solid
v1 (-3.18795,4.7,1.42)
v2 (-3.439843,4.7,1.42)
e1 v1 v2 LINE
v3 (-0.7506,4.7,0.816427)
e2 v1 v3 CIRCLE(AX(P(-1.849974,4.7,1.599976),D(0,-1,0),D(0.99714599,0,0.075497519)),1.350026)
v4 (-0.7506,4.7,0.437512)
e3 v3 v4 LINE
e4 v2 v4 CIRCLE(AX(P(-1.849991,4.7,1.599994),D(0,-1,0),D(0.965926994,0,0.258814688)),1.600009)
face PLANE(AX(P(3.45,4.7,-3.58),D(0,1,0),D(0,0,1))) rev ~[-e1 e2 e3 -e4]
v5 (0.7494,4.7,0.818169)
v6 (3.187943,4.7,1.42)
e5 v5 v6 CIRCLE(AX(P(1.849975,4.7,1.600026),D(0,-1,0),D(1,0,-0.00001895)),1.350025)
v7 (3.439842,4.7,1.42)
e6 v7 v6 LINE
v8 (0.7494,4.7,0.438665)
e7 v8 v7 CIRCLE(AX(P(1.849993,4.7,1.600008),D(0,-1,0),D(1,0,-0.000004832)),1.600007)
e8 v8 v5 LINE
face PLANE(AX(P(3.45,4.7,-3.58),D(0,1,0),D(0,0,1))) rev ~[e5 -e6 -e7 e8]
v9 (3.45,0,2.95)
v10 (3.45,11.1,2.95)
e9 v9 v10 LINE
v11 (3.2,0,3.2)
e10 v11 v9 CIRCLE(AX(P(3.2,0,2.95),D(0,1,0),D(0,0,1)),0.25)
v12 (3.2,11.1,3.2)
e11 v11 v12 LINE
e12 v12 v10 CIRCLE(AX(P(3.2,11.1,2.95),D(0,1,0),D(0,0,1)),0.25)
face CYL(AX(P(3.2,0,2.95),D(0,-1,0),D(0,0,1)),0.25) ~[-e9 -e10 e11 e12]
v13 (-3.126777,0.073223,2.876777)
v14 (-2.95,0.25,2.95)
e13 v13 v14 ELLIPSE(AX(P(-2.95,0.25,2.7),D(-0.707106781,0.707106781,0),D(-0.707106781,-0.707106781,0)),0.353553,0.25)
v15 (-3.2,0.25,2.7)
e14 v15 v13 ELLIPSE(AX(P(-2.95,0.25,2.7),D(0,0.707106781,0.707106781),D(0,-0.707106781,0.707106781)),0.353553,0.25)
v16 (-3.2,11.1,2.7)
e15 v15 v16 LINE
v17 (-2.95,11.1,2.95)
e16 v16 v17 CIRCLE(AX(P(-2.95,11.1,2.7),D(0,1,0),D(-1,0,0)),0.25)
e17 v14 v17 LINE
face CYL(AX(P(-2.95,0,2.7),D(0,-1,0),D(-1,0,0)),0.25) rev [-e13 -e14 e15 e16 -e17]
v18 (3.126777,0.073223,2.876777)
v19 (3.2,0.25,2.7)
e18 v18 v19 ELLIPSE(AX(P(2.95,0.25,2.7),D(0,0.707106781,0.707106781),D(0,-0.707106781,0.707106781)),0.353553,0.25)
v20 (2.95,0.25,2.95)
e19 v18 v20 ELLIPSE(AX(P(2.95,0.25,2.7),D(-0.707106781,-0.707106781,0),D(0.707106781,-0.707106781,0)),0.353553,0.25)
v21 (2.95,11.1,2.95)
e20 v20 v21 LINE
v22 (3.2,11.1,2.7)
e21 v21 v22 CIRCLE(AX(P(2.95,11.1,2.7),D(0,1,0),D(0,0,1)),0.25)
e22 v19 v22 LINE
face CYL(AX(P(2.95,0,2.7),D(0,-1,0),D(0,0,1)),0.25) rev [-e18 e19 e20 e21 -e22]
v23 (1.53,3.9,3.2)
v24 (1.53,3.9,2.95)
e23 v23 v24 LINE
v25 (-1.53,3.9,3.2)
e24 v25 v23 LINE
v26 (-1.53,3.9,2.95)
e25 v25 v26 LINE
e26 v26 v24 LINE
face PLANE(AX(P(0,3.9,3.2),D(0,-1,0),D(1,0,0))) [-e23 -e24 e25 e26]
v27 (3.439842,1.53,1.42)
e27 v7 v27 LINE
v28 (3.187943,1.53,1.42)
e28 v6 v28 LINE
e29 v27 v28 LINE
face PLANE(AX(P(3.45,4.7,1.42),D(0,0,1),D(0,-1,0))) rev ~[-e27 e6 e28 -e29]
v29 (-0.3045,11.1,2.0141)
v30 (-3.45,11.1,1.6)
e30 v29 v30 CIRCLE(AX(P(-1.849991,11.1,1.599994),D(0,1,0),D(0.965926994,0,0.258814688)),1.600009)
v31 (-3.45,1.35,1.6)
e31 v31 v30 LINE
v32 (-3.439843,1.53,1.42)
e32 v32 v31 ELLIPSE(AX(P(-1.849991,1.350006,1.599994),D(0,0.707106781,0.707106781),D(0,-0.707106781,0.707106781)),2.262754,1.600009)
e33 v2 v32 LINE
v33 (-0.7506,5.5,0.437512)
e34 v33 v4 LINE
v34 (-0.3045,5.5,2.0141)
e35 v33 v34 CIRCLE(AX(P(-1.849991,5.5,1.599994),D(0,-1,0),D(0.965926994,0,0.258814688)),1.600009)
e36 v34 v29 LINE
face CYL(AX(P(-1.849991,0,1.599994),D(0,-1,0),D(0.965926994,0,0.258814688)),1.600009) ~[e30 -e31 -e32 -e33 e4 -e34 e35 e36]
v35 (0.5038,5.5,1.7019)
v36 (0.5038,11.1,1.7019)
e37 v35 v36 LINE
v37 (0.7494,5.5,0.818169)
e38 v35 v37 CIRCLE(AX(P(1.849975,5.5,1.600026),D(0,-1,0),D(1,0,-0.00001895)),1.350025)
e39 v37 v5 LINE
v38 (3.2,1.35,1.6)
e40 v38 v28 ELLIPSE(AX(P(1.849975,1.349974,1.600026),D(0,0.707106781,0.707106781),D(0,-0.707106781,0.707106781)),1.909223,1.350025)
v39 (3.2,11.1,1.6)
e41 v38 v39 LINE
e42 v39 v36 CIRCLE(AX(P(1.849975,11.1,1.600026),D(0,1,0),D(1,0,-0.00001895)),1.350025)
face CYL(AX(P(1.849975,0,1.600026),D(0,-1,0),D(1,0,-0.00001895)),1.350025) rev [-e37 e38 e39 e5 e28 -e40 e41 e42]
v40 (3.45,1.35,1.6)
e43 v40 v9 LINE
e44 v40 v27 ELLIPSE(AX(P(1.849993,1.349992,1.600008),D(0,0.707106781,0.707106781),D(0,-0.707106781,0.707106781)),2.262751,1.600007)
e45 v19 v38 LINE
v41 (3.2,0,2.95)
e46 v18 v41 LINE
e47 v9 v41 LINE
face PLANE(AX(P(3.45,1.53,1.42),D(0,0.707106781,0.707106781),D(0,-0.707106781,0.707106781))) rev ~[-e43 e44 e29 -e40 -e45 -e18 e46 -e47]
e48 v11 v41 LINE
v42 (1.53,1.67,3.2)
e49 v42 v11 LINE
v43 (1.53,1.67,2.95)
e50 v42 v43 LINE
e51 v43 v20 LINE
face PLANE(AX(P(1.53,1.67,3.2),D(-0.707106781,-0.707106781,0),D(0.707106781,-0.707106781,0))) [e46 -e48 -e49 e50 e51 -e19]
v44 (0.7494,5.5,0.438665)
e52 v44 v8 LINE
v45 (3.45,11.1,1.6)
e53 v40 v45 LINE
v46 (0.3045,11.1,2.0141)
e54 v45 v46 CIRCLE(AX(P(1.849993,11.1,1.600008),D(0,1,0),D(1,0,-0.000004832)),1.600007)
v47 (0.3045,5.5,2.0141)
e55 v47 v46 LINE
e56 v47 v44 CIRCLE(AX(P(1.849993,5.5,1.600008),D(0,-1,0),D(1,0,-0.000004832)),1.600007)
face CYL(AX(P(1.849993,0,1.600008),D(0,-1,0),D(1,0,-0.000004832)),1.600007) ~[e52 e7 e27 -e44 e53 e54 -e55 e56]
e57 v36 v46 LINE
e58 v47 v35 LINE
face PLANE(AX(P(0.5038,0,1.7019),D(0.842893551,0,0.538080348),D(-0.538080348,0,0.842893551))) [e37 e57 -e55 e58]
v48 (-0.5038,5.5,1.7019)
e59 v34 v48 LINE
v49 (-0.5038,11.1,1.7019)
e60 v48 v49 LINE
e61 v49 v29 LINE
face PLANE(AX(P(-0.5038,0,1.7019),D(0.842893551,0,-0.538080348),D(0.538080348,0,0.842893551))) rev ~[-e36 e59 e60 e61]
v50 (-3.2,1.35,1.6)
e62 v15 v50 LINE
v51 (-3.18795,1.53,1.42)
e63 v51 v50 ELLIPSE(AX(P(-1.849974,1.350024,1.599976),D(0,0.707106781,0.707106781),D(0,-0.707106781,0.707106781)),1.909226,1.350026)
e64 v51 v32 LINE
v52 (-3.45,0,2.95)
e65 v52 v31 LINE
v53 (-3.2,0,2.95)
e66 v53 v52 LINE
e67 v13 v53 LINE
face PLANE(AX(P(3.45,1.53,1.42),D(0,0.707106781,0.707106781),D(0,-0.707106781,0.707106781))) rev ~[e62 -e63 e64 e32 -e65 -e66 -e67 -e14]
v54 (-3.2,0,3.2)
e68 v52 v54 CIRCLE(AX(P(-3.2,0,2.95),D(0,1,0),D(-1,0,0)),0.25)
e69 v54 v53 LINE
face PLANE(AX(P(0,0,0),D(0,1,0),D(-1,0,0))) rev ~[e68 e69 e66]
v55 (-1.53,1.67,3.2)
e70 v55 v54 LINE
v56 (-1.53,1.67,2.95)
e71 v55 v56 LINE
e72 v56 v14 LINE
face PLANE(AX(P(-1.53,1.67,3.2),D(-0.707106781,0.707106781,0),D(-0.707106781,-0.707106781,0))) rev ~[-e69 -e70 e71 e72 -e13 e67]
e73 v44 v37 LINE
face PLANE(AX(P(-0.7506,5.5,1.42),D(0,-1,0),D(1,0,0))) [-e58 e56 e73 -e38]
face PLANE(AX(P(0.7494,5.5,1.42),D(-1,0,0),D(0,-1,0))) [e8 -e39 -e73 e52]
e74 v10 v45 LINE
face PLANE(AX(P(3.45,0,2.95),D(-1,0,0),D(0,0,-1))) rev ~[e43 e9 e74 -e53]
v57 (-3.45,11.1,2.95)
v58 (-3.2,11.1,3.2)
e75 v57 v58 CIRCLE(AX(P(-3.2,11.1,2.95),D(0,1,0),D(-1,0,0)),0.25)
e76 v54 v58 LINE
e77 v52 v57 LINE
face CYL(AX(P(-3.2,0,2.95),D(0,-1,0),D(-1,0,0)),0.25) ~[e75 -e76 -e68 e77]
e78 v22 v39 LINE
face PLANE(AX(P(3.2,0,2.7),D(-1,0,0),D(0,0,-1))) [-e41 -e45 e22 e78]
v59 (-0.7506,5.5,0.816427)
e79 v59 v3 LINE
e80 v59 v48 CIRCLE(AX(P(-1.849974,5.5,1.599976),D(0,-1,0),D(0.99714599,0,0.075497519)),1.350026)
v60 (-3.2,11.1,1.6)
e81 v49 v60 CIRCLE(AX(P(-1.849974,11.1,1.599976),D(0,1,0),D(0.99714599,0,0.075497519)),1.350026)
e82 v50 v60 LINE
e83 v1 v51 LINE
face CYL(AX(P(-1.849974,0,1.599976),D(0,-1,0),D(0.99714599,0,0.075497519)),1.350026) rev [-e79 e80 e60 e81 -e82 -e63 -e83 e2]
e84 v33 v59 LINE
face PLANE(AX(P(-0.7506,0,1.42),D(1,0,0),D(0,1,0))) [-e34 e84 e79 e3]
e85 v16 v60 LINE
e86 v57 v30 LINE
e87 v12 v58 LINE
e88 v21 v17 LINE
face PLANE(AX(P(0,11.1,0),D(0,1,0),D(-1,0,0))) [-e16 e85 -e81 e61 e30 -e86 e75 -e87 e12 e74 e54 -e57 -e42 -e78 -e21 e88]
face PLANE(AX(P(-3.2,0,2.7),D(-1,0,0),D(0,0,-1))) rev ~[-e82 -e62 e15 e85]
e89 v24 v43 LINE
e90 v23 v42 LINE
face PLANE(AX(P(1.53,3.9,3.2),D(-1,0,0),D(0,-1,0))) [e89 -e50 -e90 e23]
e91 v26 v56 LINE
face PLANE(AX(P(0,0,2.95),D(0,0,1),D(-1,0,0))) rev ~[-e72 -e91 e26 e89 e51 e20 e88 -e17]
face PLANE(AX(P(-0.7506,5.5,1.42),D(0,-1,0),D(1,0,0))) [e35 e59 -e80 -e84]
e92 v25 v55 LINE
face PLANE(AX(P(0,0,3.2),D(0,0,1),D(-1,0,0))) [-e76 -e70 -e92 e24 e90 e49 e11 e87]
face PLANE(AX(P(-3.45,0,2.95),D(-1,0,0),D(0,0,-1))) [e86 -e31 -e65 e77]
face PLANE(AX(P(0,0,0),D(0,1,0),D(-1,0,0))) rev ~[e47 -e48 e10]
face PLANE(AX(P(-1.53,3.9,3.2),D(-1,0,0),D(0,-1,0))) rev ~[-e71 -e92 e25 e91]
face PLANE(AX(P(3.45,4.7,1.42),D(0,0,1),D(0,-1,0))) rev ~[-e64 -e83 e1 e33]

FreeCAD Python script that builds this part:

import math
import FreeCAD as App
import Part
import Sketcher
from FreeCAD import Vector
Q = App.Units.Quantity

doc = App.newDocument("Part")
body = doc.addObject("PartDesign::Body", "Body")

sketch1 = body.newObject("Sketcher::SketchObject", "Sketch")
sketch1.AttachmentSupport = (doc.getObject("XZ_Plane"), [""])
sketch1.MapMode = "FlatFace"
sketch1.addGeometry(Part.LineSegment(Vector(-3.2, 3.2, 0), Vector(3.2, 3.2, 0)), False)
sketch1.addGeometry(Part.ArcOfCircle(Part.Circle(Vector(3.2, 2.95, 0), Vector(0, 0, 1), 0.25), math.radians(0), math.radians(90)), False)
sketch1.addGeometry(Part.LineSegment(Vector(3.45, 2.95, 0), Vector(3.45, 1.6, 0)), False)
sketch1.addGeometry(Part.ArcOfCircle(Part.Circle(Vector(1.85, 1.6, 0), Vector(0, 0, 1), 1.6), math.radians(165), math.radians(360)), False)
sketch1.addGeometry(Part.LineSegment(Vector(0.3, 2.01, 0), Vector(0.5, 1.7, 0)), False)
sketch1.addGeometry(Part.ArcOfCircle(Part.Circle(Vector(1.85, 1.6, 0), Vector(0, 0, 1), 1.35), math.radians(176), math.radians(360)), False)
sketch1.addGeometry(Part.LineSegment(Vector(3.2, 1.6, 0), Vector(3.2, 2.7, 0)), False)
sketch1.addGeometry(Part.ArcOfCircle(Part.Circle(Vector(2.95, 2.7, 0), Vector(0, 0, 1), 0.25), math.radians(0), math.radians(90)), False)
sketch1.addGeometry(Part.LineSegment(Vector(2.95, 2.95, 0), Vector(-2.95, 2.95, 0)), False)
sketch1.addGeometry(Part.ArcOfCircle(Part.Circle(Vector(-2.95, 2.7, 0), Vector(0, 0, 1), 0.25), math.radians(90), math.radians(180)), False)
sketch1.addGeometry(Part.LineSegment(Vector(-3.2, 2.7, 0), Vector(-3.2, 1.6, 0)), False)
sketch1.addGeometry(Part.ArcOfCircle(Part.Circle(Vector(-1.85, 1.6, 0), Vector(0, 0, 1), 1.35), math.radians(180), math.radians(364)), False)
sketch1.addGeometry(Part.LineSegment(Vector(-0.5, 1.7, 0), Vector(-0.3, 2.01, 0)), False)
sketch1.addGeometry(Part.ArcOfCircle(Part.Circle(Vector(-1.85, 1.6, 0), Vector(0, 0, 1), 1.6), math.radians(180), math.radians(375)), False)
sketch1.addGeometry(Part.LineSegment(Vector(-3.45, 1.6, 0), Vector(-3.45, 2.95, 0)), False)
sketch1.addGeometry(Part.ArcOfCircle(Part.Circle(Vector(-3.2, 2.95, 0), Vector(0, 0, 1), 0.25), math.radians(90), math.radians(180)), False)
sketch1.addConstraint(Sketcher.Constraint("Tangent", 0, 2, 1, 2))
sketch1.addConstraint(Sketcher.Constraint("Tangent", 1, 1, 2, 1))
sketch1.addConstraint(Sketcher.Constraint("Tangent", 2, 2, 3, 2))
sketch1.addConstraint(Sketcher.Constraint("Coincident", 3, 1, 4, 1))
sketch1.addConstraint(Sketcher.Constraint("Coincident", 4, 2, 5, 1))
sketch1.addConstraint(Sketcher.Constraint("Tangent", 5, 2, 6, 1))
sketch1.addConstraint(Sketcher.Constraint("Tangent", 6, 2, 7, 1))
sketch1.addConstraint(Sketcher.Constraint("Tangent", 7, 2, 8, 1))
sketch1.addConstraint(Sketcher.Constraint("Tangent", 8, 2, 9, 1))
sketch1.addConstraint(Sketcher.Constraint("Tangent", 9, 2, 10, 1))
sketch1.addConstraint(Sketcher.Constraint("Tangent", 10, 2, 11, 1))
sketch1.addConstraint(Sketcher.Constraint("Coincident", 11, 2, 12, 1))
sketch1.addConstraint(Sketcher.Constraint("Coincident", 12, 2, 13, 2))
sketch1.addConstraint(Sketcher.Constraint("Tangent", 13, 1, 14, 1))
sketch1.addConstraint(Sketcher.Constraint("Tangent", 14, 2, 15, 2))
sketch1.addConstraint(Sketcher.Constraint("Tangent", 15, 1, 0, 1))
sketch1.addConstraint(Sketcher.Constraint("Horizontal", 0))
sketch1.addConstraint(Sketcher.Constraint("Vertical", 2))
sketch1.addConstraint(Sketcher.Constraint("Vertical", 6))
sketch1.addConstraint(Sketcher.Constraint("Horizontal", 8))
sketch1.addConstraint(Sketcher.Constraint("Vertical", 10))
sketch1.addConstraint(Sketcher.Constraint("Vertical", 14))
sketch1.addConstraint(Sketcher.Constraint("Coincident", 5, 3, 3, 3))
sketch1.addConstraint(Sketcher.Constraint("Coincident", 13, 3, 11, 3))
sketch1.addConstraint(Sketcher.Constraint("Equal", 1, 7))
sketch1.addConstraint(Sketcher.Constraint("Equal", 7, 9))
sketch1.addConstraint(Sketcher.Constraint("Equal", 5, 11))
sketch1.addConstraint(Sketcher.Constraint("Equal", 3, 13))
sketch1.addConstraint(Sketcher.Constraint("Equal", 9, 15))
sketch1.addConstraint(Sketcher.Constraint("Symmetric", 3, 3, 11, 3, -2))
sketch1.addConstraint(Sketcher.Constraint("Horizontal", 1, 1, 7, 2))
sketch1.addConstraint(Sketcher.Constraint("Horizontal", 4, 2, 11, 2))
sketch1.addConstraint(Sketcher.Constraint("Horizontal", 3, 1, 12, 2))
sketch1.addConstraint(Sketcher.Constraint("Vertical", 0, 2, 5, 2))
sketch1.addConstraint(Sketcher.Constraint("Radius", 3, 1.6))
sketch1.addConstraint(Sketcher.Constraint("Radius", 1, 0.25))
sketch1.addConstraint(Sketcher.Constraint("DistanceX", -1, 1, 1, 3, 3.2))
sketch1.addConstraint(Sketcher.Constraint("DistanceY", -1, 1, 3, 3, 1.6))
sketch1.addConstraint(Sketcher.Constraint("DistanceY", -1, 1, 0, 2, 3.2))
sketch1.addConstraint(Sketcher.Constraint("DistanceY", -1, 1, 3, 1, 2.014))
sketch1.addConstraint(Sketcher.Constraint("DistanceY", -1, 1, 4, 2, 1.702))
pad1 = body.newObject("PartDesign::Pad", "Pad")
pad1.Profile = sketch1
pad1.Length = 11.1
pad1.Reversed = True

sketch2 = body.newObject("Sketcher::SketchObject", "Sketch001")
sketch2.AttachmentSupport = (doc.getObject("YZ_Plane"), [""])
sketch2.MapMode = "FlatFace"
sketch2.AttachmentOffset = App.Placement(Vector(0, 0, 3.45), App.Rotation())
sketch2.addGeometry(Part.LineSegment(Vector(-3, -3.6, 0), Vector(4.7, -3.6, 0)), False)
sketch2.addGeometry(Part.LineSegment(Vector(4.7, -3.6, 0), Vector(4.7, 1.4, 0)), False)
sketch2.addGeometry(Part.LineSegment(Vector(4.7, 1.4, 0), Vector(1.5, 1.4, 0)), False)
sketch2.addGeometry(Part.LineSegment(Vector(1.5, 1.4, 0), Vector(0, 3, 0)), False)
sketch2.addGeometry(Part.LineSegment(Vector(0, 3, 0), Vector(-3, 3, 0)), False)
sketch2.addGeometry(Part.LineSegment(Vector(-3, 3, 0), Vector(-3, -3.6, 0)), False)
sketch2.addConstraint(Sketcher.Constraint("Coincident", 0, 2, 1, 1))
sketch2.addConstraint(Sketcher.Constraint("Coincident", 1, 2, 2, 1))
sketch2.addConstraint(Sketcher.Constraint("Coincident", 2, 2, 3, 1))
sketch2.addConstraint(Sketcher.Constraint("Coincident", 3, 2, 4, 1))
sketch2.addConstraint(Sketcher.Constraint("Coincident", 4, 2, 5, 1))
sketch2.addConstraint(Sketcher.Constraint("Coincident", 5, 2, 0, 1))
sketch2.addConstraint(Sketcher.Constraint("Horizontal", 0))
sketch2.addConstraint(Sketcher.Constraint("Vertical", 1))
sketch2.addConstraint(Sketcher.Constraint("Horizontal", 2))
sketch2.addConstraint(Sketcher.Constraint("Horizontal", 4))
sketch2.addConstraint(Sketcher.Constraint("Vertical", 5))
sketch2.addConstraint(Sketcher.Constraint("PointOnObject", 3, 2, -2))
sketch2.addConstraint(Sketcher.Constraint("DistanceX", 4, 2, 4, 1, 3.0))
sketch2.addConstraint(Sketcher.Constraint("DistanceY", 1, 1, 1, 2, 5.0))
sketch2.addConstraint(Sketcher.Constraint("Angle", 3, Q("135 deg")))
sketch2.addConstraint(Sketcher.Constraint("DistanceX", 0, 1, 0, 2, 7.7))
sketch2.addConstraint(Sketcher.Constraint("DistanceX", 2, 2, 2, 1, 3.17))
sketch2.addConstraint(Sketcher.Constraint("DistanceY", 0, 2, -1, 1, 3.58))
pocket1 = body.newObject("PartDesign::Pocket", "Pocket")
pocket1.Profile = sketch2
pocket1.Type = "ThroughAll"

sketch3 = body.newObject("Sketcher::SketchObject", "Sketch002")
sketch3.AttachmentSupport = (doc.getObject("XY_Plane"), [""])
sketch3.MapMode = "FlatFace"
sketch3.AttachmentOffset = App.Placement(Vector(0, 0, 1.42), App.Rotation())
sketch3.addGeometry(Part.LineSegment(Vector(0.7, 5.5, 0), Vector(0.7, 0, 0)), False)
sketch3.addGeometry(Part.LineSegment(Vector(0.7, 0, 0), Vector(-0.8, 0, 0)), False)
sketch3.addGeometry(Part.LineSegment(Vector(-0.8, 0, 0), Vector(-0.8, 5.5, 0)), False)
sketch3.addGeometry(Part.LineSegment(Vector(-0.8, 5.5, 0), Vector(0.7, 5.5, 0)), False)
sketch3.addConstraint(Sketcher.Constraint("Coincident", 0, 2, 1, 1))
sketch3.addConstraint(Sketcher.Constraint("Coincident", 1, 2, 2, 1))
sketch3.addConstraint(Sketcher.Constraint("Coincident", 2, 2, 3, 1))
sketch3.addConstraint(Sketcher.Constraint("Coincident", 3, 2, 0, 1))
sketch3.addConstraint(Sketcher.Constraint("Vertical", 0))
sketch3.addConstraint(Sketcher.Constraint("Horizontal", 1))
sketch3.addConstraint(Sketcher.Constraint("Vertical", 2))
sketch3.addConstraint(Sketcher.Constraint("Horizontal", 3))
sketch3.addConstraint(Sketcher.Constraint("PointOnObject", 0, 2, -1))
sketch3.addConstraint(Sketcher.Constraint("DistanceX", 1, 2, 1, 1, 1.5))
sketch3.addConstraint(Sketcher.Constraint("DistanceY", 0, 2, 0, 1, 5.5))
sketch3.addConstraint(Sketcher.Constraint("DistanceX", -1, 1, 0, 2, 0.7494))
pocket2 = body.newObject("PartDesign::Pocket", "Pocket001")
pocket2.Profile = sketch3
pocket2.Type = "TwoLengths"
pocket2.Length = 11.1
pocket2.Length2 = 1

sketch4 = body.newObject("Sketcher::SketchObject", "Sketch003")
sketch4.AttachmentSupport = (doc.getObject("XY_Plane"), [""])
sketch4.MapMode = "FlatFace"
sketch4.AttachmentOffset = App.Placement(Vector(0, 0, 3.2), App.Rotation())
sketch4.addGeometry(Part.LineSegment(Vector(-1.5, 1.7, 0), Vector(-3.2, 0, 0)), False)
sketch4.addGeometry(Part.LineSegment(Vector(-3.2, 0, 0), Vector(3.2, 0, 0)), False)
sketch4.addGeometry(Part.LineSegment(Vector(3.2, 0, 0), Vector(1.5, 1.7, 0)), False)
sketch4.addGeometry(Part.LineSegment(Vector(1.5, 1.7, 0), Vector(1.5, 3.9, 0)), False)
sketch4.addGeometry(Part.LineSegment(Vector(1.5, 3.9, 0), Vector(-1.5, 3.9, 0)), False)
sketch4.addGeometry(Part.LineSegment(Vector(-1.5, 3.9, 0), Vector(-1.5, 1.7, 0)), False)
sketch4.addConstraint(Sketcher.Constraint("Coincident", 0, 2, 1, 1))
sketch4.addConstraint(Sketcher.Constraint("Coincident", 1, 2, 2, 1))
sketch4.addConstraint(Sketcher.Constraint("Coincident", 2, 2, 3, 1))
sketch4.addConstraint(Sketcher.Constraint("Coincident", 3, 2, 4, 1))
sketch4.addConstraint(Sketcher.Constraint("Coincident", 4, 2, 5, 1))
sketch4.addConstraint(Sketcher.Constraint("Coincident", 5, 2, 0, 1))
sketch4.addConstraint(Sketcher.Constraint("Horizontal", 1))
sketch4.addConstraint(Sketcher.Constraint("Vertical", 3))
sketch4.addConstraint(Sketcher.Constraint("Horizontal", 4))
sketch4.addConstraint(Sketcher.Constraint("Vertical", 5))
sketch4.addConstraint(Sketcher.Constraint("Symmetric", 0, 2, 1, 2, -1, 1))
sketch4.addConstraint(Sketcher.Constraint("Symmetric", 2, 2, 5, 2, -2))
sketch4.addConstraint(Sketcher.Constraint("Perpendicular", 0, 2))
sketch4.addConstraint(Sketcher.Constraint("DistanceX", -1, 1, 2, 2, 1.53))
sketch4.addConstraint(Sketcher.Constraint("DistanceX", 1, 1, 1, 2, 6.4))
sketch4.addConstraint(Sketcher.Constraint("DistanceY", 3, 1, 3, 2, 2.23))
pocket3 = body.newObject("PartDesign::Pocket", "Pocket002")
pocket3.Profile = sketch4
pocket3.Type = "ThroughAll"

doc.recompute()
